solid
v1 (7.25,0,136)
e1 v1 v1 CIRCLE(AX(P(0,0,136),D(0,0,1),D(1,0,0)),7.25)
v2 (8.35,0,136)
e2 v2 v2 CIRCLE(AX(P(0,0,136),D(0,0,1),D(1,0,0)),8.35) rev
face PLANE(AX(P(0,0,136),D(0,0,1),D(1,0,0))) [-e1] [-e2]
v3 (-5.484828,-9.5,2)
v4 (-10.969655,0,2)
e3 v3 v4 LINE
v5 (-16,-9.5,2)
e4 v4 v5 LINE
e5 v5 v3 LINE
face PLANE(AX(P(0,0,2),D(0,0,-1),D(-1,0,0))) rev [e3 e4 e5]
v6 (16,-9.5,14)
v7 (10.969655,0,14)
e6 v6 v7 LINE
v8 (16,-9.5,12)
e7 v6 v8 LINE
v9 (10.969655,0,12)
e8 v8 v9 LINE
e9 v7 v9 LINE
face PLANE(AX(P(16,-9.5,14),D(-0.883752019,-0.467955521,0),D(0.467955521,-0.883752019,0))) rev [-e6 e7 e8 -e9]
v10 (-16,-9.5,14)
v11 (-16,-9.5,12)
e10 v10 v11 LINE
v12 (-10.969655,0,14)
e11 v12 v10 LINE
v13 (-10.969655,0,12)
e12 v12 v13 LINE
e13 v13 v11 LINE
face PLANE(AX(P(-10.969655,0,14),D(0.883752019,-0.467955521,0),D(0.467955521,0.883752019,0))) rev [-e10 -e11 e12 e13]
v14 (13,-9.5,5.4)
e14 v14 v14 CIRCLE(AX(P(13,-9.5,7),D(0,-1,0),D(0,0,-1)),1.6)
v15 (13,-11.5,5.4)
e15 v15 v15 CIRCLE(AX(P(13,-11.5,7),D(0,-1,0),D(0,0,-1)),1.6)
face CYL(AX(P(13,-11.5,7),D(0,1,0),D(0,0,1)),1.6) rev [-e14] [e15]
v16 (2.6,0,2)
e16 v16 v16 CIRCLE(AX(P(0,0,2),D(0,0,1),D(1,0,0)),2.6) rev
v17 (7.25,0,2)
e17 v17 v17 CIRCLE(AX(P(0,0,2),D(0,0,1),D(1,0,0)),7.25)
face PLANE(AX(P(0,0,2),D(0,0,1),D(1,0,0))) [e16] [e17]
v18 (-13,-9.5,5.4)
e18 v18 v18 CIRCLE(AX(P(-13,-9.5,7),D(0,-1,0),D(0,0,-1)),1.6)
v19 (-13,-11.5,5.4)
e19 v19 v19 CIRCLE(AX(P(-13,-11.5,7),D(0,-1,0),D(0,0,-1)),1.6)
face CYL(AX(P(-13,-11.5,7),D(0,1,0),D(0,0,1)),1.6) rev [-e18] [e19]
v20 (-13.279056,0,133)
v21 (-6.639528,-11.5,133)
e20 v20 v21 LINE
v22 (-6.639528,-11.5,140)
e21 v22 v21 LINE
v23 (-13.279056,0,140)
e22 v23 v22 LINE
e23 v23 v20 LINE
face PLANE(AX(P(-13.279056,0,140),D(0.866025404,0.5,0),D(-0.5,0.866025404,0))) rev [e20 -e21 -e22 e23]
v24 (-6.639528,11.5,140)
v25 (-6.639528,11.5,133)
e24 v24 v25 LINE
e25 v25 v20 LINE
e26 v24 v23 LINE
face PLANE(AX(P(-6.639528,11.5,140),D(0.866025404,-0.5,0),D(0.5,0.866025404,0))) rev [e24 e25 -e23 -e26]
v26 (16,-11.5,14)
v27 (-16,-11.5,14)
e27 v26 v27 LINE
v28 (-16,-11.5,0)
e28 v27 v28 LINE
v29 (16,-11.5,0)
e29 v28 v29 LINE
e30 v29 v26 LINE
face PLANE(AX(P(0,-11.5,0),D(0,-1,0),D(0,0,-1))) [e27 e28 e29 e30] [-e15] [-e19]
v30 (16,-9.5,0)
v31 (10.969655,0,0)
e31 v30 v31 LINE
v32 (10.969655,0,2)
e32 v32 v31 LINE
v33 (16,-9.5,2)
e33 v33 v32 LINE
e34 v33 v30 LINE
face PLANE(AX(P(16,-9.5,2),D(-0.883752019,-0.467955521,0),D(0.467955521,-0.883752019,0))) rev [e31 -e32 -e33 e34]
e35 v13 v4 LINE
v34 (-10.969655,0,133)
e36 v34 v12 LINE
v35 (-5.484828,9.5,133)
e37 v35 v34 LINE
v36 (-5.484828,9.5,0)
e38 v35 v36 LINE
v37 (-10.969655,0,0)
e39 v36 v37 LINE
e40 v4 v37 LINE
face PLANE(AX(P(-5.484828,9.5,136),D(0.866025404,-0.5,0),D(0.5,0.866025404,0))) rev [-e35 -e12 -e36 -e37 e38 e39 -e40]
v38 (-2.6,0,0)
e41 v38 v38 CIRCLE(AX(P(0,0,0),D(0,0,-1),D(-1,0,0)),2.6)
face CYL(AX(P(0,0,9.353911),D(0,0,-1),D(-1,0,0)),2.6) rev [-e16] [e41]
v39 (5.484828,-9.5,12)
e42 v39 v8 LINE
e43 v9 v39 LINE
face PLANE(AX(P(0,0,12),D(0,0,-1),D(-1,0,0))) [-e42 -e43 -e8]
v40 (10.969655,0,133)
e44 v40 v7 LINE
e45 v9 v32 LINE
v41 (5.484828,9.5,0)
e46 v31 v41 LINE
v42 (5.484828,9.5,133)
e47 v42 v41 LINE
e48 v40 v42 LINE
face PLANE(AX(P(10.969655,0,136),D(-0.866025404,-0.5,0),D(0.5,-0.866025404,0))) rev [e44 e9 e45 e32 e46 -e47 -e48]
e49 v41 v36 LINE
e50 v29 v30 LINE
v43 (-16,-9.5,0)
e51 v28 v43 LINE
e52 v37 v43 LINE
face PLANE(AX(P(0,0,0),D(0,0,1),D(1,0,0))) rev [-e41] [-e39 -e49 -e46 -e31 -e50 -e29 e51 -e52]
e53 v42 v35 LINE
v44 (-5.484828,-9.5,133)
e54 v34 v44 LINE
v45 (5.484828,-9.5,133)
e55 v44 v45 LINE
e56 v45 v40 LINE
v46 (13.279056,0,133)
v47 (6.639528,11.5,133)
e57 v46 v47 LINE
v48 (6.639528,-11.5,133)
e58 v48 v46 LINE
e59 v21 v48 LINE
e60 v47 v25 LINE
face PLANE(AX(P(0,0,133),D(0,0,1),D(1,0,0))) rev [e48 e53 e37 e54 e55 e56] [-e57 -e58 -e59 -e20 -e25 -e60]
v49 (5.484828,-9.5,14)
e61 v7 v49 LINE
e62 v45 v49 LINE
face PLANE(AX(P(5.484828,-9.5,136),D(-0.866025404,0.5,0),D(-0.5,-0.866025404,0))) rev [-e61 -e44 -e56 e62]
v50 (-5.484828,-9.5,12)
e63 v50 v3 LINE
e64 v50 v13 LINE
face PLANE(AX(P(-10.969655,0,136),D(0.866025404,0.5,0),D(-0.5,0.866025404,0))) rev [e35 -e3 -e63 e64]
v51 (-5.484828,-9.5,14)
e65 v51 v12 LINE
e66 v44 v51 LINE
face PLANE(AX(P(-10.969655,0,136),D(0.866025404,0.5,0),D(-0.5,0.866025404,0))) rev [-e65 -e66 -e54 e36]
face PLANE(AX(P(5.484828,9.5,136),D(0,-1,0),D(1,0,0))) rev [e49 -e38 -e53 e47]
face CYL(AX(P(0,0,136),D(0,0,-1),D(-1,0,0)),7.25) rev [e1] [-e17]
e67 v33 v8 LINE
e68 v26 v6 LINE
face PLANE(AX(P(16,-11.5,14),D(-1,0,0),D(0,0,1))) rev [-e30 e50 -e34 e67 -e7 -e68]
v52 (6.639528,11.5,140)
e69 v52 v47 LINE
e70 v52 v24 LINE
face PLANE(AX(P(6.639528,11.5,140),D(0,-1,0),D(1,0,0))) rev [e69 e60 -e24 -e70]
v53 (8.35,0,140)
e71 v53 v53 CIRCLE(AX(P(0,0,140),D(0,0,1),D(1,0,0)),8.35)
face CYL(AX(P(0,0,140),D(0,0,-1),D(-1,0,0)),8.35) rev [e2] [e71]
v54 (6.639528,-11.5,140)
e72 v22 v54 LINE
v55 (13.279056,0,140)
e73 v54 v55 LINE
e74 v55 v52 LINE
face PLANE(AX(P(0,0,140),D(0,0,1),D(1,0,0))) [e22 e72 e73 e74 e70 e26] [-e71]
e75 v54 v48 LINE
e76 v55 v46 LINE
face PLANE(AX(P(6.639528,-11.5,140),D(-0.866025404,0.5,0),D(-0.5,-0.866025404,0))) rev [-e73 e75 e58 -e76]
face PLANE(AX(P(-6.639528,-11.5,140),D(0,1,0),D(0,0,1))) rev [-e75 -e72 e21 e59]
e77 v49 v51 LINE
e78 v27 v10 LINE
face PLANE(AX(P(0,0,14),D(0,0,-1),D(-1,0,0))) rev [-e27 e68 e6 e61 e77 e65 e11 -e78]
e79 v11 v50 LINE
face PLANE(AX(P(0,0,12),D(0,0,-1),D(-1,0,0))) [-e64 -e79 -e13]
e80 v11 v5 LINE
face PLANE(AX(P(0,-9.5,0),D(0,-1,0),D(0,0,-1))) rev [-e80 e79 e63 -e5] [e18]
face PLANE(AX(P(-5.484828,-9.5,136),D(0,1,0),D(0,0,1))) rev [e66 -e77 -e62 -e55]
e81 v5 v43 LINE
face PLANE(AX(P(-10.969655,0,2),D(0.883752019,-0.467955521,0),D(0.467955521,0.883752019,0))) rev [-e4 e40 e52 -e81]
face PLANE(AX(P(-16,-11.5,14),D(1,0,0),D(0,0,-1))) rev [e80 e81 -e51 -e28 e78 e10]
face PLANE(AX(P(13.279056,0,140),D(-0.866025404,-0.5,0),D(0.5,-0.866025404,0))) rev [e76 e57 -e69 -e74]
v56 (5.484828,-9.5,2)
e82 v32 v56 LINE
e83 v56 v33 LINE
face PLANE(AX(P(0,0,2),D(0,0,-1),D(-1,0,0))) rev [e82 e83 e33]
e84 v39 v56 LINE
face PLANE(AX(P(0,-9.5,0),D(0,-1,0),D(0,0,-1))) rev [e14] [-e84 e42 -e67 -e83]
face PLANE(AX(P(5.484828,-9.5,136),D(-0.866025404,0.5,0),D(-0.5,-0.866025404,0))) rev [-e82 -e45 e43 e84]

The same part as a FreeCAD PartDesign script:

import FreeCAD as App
import Part
import Sketcher
from FreeCAD import Vector
Q = App.Units.Quantity


def add_polygon(sketch, points):
    """Adds a closed chain of lines whose ends are joined by coincident constraints."""
    first, n = sketch.GeometryCount, len(points)
    for a, b in zip(points, points[1:] + points[:1]):
        sketch.addGeometry(Part.LineSegment(App.Vector(*a, 0), App.Vector(*b, 0)), False)
    for i in range(n):
        sketch.addConstraint(Sketcher.Constraint("Coincident", first + i, 2, first + (i + 1) % n, 1))

doc = App.newDocument("Part")
params = doc.addObject("Spreadsheet::Sheet", "Params")
for row, (alias, value) in enumerate([
    ("sketch1_diameter", "14.5 mm"),
    ("pad1_length", "136 mm"),
    ("sketch2_diameter", "14.5 mm"),
    ("pad2_length", "2 mm"),
    ("sketch3_diameter", "16.7 mm"),
    ("pad3_length", "7 mm"),
    ("pad4_length", "2 mm"),
    ("linearpattern_pitch", "12 mm"),
    ("sketch5_diameter", "3.2 mm"),
    ("sketch5_width", "32 mm"),
    ("sketch5_height", "14 mm"),
    ("pad5_length", "2 mm"),
    ("sketch6_diameter", "5.2 mm"),
    ("pocket1_length", "2 mm"),
], start=1):
    params.set(f"A{row}", alias)
    params.set(f"B{row}", "=" + value)
    params.setAlias(f"B{row}", alias)

body = doc.addObject("PartDesign::Body", "Body")

# Sketch on XY plane
sketch1 = body.newObject("Sketcher::SketchObject", "Sketch")
sketch1.AttachmentSupport = (doc.getObject("XY_Plane"), [""])
sketch1.MapMode = "FlatFace"
add_polygon(sketch1, [(-11, 0), (-5, -10), (5, -10), (11, 0), (5, 10), (-5, 10)])  # lines 0-5
sketch1.addGeometry(Part.Circle(Vector(0, 0, 0), Vector(0, 0, 1), 7), False)  # 6
sketch1.addConstraint(Sketcher.Constraint("Horizontal", 1))
sketch1.addConstraint(Sketcher.Constraint("Horizontal", 4))
sketch1.addConstraint(Sketcher.Constraint("Coincident", 6, 3, -1, 1))
sketch1.addConstraint(Sketcher.Constraint("Symmetric", 0, 2, 3, 2, -1, 1))
sketch1.addConstraint(Sketcher.Constraint("Symmetric", 2, 2, 5, 2, -1, 1))
sketch1.addConstraint(Sketcher.Constraint("PointOnObject", 2, 2, -1))
sketch1.addConstraint(Sketcher.Constraint("Parallel", 2, 5))
sketch1.addConstraint(Sketcher.Constraint("Vertical", 1, 2, 3, 2))
sketch1.addConstraint(Sketcher.Constraint("Diameter", 6, 14.5))
sketch1.addConstraint(Sketcher.Constraint("Angle", 0, Q("-60 deg")))
sketch1.addConstraint(Sketcher.Constraint("DistanceY", 1, 2, 3, 2, 19.0))
sketch1.addConstraint(Sketcher.Constraint("DistanceX", 1, 1, 1, 2, 10.969655))
sketch1.setExpression("Constraints[14]", "Params.sketch1_diameter")
pad1 = body.newObject("PartDesign::Pad", "Pad")
pad1.Profile = sketch1
pad1.setExpression("Length", "Params.pad1_length")

# Sketch on XY plane
sketch2 = body.newObject("Sketcher::SketchObject", "Sketch001")
sketch2.AttachmentSupport = (doc.getObject("XY_Plane"), [""])
sketch2.MapMode = "FlatFace"
sketch2.addGeometry(Part.Circle(Vector(0, 0, 0), Vector(0, 0, 1), 7), False)
sketch2.addConstraint(Sketcher.Constraint("Coincident", 0, 3, -1, 1))
sketch2.addConstraint(Sketcher.Constraint("Diameter", 0, 14.5))
sketch2.setExpression("Constraints[1]", "Params.sketch2_diameter")
pad2 = body.newObject("PartDesign::Pad", "Pad001")
pad2.Profile = sketch2
pad2.setExpression("Length", "Params.pad2_length")

# Sketch on XY plane
sketch3 = body.newObject("Sketcher::SketchObject", "Sketch002")
sketch3.AttachmentSupport = (doc.getObject("XY_Plane"), [""])
sketch3.MapMode = "FlatFace"
sketch3.AttachmentOffset = App.Placement(Vector(0, 0, 133), App.Rotation())
add_polygon(sketch3, [(13, 0), (7, 12), (-7, 12), (-13, 0), (-7, -12), (7, -12)])  # lines 0-5
sketch3.addGeometry(Part.Circle(Vector(0, 0, 0), Vector(0, 0, 1), 8), False)  # 6
sketch3.addConstraint(Sketcher.Constraint("Horizontal", 1))
sketch3.addConstraint(Sketcher.Constraint("Horizontal", 4))
sketch3.addConstraint(Sketcher.Constraint("Coincident", 6, 3, -1, 1))
sketch3.addConstraint(Sketcher.Constraint("Symmetric", 0, 2, 3, 2, -1, 1))
sketch3.addConstraint(Sketcher.Constraint("Symmetric", 2, 2, 5, 2, -1, 1))
sketch3.addConstraint(Sketcher.Constraint("PointOnObject", 2, 2, -1))
sketch3.addConstraint(Sketcher.Constraint("Parallel", 2, 5))
sketch3.addConstraint(Sketcher.Constraint("Vertical", 1, 2, 3, 2))
sketch3.addConstraint(Sketcher.Constraint("Diameter", 6, 16.7))
sketch3.addConstraint(Sketcher.Constraint("Angle", 0, Q("120 deg")))
sketch3.addConstraint(Sketcher.Constraint("DistanceY", 3, 2, 1, 2, 23.0))
sketch3.addConstraint(Sketcher.Constraint("DistanceX", 1, 2, 1, 1, 13.279056))
sketch3.setExpression("Constraints[14]", "Params.sketch3_diameter")
pad3 = body.newObject("PartDesign::Pad", "Pad002")
pad3.Profile = sketch3
pad3.setExpression("Length", "Params.pad3_length")

# Sketch on XY plane
sketch4 = body.newObject("Sketcher::SketchObject", "Sketch003")
sketch4.AttachmentSupport = (doc.getObject("XY_Plane"), [""])
sketch4.MapMode = "FlatFace"
add_polygon(sketch4, [(11, 0), (5, -10), (16, -10)])  # lines 0-2
add_polygon(sketch4, [(-5, -10), (-11, 0), (-16, -10)])  # lines 3-5
sketch4.addConstraint(Sketcher.Constraint("Horizontal", 1))
sketch4.addConstraint(Sketcher.Constraint("Horizontal", 5))
sketch4.addConstraint(Sketcher.Constraint("Symmetric", 2, 2, 3, 2, -1, 1))
sketch4.addConstraint(Sketcher.Constraint("Symmetric", 1, 2, 4, 2, -2))
sketch4.addConstraint(Sketcher.Constraint("PointOnObject", 2, 2, -1))
sketch4.addConstraint(Sketcher.Constraint("Equal", 1, 5))
sketch4.addConstraint(Sketcher.Constraint("Angle", 0, Q("-120 deg")))
sketch4.addConstraint(Sketcher.Constraint("DistanceX", -1, 1, 1, 2, 16.0))
sketch4.addConstraint(Sketcher.Constraint("DistanceY", 0, 2, -1, 1, 9.5))
sketch4.addConstraint(Sketcher.Constraint("Distance", 2, 10.749622))
pad4 = body.newObject("PartDesign::Pad", "Pad003")
pad4.Profile = sketch4
pad4.setExpression("Length", "Params.pad4_length")
doc.recompute()

linearpattern = body.newObject("PartDesign::LinearPattern", "LinearPattern")
linearpattern.Originals = [pad4]
linearpattern.Direction = (doc.getObject("Z_Axis"), [""])
linearpattern.Mode = "offset"
linearpattern.setExpression("Offset", "Params.linearpattern_pitch")
linearpattern.Occurrences = 2
body.Tip = linearpattern

# Sketch on XZ plane
sketch5 = body.newObject("Sketcher::SketchObject", "Sketch004")
sketch5.AttachmentSupport = (doc.getObject("XZ_Plane"), [""])
sketch5.MapMode = "FlatFace"
sketch5.AttachmentOffset = App.Placement(Vector(0, 0, 9.5), App.Rotation())
add_polygon(sketch5, [(-16, 14), (-16, 0), (16, 0), (16, 14)])  # lines 0-3
sketch5.addGeometry(Part.Circle(Vector(-13, 7, 0), Vector(0, 0, 1), 1.6), False)  # 4
sketch5.addGeometry(Part.Circle(Vector(13, 7, 0), Vector(0, 0, 1), 1.6), False)  # 5
sketch5.addConstraint(Sketcher.Constraint("Vertical", 0))
sketch5.addConstraint(Sketcher.Constraint("Horizontal", 1))
sketch5.addConstraint(Sketcher.Constraint("Vertical", 2))
sketch5.addConstraint(Sketcher.Constraint("Horizontal", 3))
sketch5.addConstraint(Sketcher.Constraint("Equal", 4, 5))
sketch5.addConstraint(Sketcher.Constraint("Symmetric", 0, 2, 1, 2, -1, 1))
sketch5.addConstraint(Sketcher.Constraint("Symmetric", 4, 3, 5, 3, -2))
sketch5.addConstraint(Sketcher.Constraint("Diameter", 4, 3.2))
sketch5.addConstraint(Sketcher.Constraint("DistanceX", 1, 1, 1, 2, 32.0))
sketch5.addConstraint(Sketcher.Constraint("DistanceY", 0, 2, 0, 1, 14.0))
sketch5.addConstraint(Sketcher.Constraint("DistanceX", 4, 3, -1, 1, 13.0))
sketch5.addConstraint(Sketcher.Constraint("DistanceY", -1, 1, 4, 3, 7.0))
sketch5.setExpression("Constraints[11]", "Params.sketch5_diameter")
sketch5.setExpression("Constraints[12]", "Params.sketch5_width")
sketch5.setExpression("Constraints[13]", "Params.sketch5_height")
pad5 = body.newObject("PartDesign::Pad", "Pad004")
pad5.Profile = sketch5
pad5.setExpression("Length", "Params.pad5_length")

# Sketch on XY plane
sketch6 = body.newObject("Sketcher::SketchObject", "Sketch005")
sketch6.AttachmentSupport = (doc.getObject("XY_Plane"), [""])
sketch6.MapMode = "FlatFace"
sketch6.addGeometry(Part.Circle(Vector(0, 0, 0), Vector(0, 0, 1), 2.6), False)
sketch6.addConstraint(Sketcher.Constraint("Coincident", 0, 3, -1, 1))
sketch6.addConstraint(Sketcher.Constraint("Diameter", 0, 5.2))
sketch6.setExpression("Constraints[1]", "Params.sketch6_diameter")
pocket1 = body.newObject("PartDesign::Pocket", "Pocket")
pocket1.Profile = sketch6
pocket1.setExpression("Length", "Params.pocket1_length")
pocket1.Reversed = True

doc.recompute()
